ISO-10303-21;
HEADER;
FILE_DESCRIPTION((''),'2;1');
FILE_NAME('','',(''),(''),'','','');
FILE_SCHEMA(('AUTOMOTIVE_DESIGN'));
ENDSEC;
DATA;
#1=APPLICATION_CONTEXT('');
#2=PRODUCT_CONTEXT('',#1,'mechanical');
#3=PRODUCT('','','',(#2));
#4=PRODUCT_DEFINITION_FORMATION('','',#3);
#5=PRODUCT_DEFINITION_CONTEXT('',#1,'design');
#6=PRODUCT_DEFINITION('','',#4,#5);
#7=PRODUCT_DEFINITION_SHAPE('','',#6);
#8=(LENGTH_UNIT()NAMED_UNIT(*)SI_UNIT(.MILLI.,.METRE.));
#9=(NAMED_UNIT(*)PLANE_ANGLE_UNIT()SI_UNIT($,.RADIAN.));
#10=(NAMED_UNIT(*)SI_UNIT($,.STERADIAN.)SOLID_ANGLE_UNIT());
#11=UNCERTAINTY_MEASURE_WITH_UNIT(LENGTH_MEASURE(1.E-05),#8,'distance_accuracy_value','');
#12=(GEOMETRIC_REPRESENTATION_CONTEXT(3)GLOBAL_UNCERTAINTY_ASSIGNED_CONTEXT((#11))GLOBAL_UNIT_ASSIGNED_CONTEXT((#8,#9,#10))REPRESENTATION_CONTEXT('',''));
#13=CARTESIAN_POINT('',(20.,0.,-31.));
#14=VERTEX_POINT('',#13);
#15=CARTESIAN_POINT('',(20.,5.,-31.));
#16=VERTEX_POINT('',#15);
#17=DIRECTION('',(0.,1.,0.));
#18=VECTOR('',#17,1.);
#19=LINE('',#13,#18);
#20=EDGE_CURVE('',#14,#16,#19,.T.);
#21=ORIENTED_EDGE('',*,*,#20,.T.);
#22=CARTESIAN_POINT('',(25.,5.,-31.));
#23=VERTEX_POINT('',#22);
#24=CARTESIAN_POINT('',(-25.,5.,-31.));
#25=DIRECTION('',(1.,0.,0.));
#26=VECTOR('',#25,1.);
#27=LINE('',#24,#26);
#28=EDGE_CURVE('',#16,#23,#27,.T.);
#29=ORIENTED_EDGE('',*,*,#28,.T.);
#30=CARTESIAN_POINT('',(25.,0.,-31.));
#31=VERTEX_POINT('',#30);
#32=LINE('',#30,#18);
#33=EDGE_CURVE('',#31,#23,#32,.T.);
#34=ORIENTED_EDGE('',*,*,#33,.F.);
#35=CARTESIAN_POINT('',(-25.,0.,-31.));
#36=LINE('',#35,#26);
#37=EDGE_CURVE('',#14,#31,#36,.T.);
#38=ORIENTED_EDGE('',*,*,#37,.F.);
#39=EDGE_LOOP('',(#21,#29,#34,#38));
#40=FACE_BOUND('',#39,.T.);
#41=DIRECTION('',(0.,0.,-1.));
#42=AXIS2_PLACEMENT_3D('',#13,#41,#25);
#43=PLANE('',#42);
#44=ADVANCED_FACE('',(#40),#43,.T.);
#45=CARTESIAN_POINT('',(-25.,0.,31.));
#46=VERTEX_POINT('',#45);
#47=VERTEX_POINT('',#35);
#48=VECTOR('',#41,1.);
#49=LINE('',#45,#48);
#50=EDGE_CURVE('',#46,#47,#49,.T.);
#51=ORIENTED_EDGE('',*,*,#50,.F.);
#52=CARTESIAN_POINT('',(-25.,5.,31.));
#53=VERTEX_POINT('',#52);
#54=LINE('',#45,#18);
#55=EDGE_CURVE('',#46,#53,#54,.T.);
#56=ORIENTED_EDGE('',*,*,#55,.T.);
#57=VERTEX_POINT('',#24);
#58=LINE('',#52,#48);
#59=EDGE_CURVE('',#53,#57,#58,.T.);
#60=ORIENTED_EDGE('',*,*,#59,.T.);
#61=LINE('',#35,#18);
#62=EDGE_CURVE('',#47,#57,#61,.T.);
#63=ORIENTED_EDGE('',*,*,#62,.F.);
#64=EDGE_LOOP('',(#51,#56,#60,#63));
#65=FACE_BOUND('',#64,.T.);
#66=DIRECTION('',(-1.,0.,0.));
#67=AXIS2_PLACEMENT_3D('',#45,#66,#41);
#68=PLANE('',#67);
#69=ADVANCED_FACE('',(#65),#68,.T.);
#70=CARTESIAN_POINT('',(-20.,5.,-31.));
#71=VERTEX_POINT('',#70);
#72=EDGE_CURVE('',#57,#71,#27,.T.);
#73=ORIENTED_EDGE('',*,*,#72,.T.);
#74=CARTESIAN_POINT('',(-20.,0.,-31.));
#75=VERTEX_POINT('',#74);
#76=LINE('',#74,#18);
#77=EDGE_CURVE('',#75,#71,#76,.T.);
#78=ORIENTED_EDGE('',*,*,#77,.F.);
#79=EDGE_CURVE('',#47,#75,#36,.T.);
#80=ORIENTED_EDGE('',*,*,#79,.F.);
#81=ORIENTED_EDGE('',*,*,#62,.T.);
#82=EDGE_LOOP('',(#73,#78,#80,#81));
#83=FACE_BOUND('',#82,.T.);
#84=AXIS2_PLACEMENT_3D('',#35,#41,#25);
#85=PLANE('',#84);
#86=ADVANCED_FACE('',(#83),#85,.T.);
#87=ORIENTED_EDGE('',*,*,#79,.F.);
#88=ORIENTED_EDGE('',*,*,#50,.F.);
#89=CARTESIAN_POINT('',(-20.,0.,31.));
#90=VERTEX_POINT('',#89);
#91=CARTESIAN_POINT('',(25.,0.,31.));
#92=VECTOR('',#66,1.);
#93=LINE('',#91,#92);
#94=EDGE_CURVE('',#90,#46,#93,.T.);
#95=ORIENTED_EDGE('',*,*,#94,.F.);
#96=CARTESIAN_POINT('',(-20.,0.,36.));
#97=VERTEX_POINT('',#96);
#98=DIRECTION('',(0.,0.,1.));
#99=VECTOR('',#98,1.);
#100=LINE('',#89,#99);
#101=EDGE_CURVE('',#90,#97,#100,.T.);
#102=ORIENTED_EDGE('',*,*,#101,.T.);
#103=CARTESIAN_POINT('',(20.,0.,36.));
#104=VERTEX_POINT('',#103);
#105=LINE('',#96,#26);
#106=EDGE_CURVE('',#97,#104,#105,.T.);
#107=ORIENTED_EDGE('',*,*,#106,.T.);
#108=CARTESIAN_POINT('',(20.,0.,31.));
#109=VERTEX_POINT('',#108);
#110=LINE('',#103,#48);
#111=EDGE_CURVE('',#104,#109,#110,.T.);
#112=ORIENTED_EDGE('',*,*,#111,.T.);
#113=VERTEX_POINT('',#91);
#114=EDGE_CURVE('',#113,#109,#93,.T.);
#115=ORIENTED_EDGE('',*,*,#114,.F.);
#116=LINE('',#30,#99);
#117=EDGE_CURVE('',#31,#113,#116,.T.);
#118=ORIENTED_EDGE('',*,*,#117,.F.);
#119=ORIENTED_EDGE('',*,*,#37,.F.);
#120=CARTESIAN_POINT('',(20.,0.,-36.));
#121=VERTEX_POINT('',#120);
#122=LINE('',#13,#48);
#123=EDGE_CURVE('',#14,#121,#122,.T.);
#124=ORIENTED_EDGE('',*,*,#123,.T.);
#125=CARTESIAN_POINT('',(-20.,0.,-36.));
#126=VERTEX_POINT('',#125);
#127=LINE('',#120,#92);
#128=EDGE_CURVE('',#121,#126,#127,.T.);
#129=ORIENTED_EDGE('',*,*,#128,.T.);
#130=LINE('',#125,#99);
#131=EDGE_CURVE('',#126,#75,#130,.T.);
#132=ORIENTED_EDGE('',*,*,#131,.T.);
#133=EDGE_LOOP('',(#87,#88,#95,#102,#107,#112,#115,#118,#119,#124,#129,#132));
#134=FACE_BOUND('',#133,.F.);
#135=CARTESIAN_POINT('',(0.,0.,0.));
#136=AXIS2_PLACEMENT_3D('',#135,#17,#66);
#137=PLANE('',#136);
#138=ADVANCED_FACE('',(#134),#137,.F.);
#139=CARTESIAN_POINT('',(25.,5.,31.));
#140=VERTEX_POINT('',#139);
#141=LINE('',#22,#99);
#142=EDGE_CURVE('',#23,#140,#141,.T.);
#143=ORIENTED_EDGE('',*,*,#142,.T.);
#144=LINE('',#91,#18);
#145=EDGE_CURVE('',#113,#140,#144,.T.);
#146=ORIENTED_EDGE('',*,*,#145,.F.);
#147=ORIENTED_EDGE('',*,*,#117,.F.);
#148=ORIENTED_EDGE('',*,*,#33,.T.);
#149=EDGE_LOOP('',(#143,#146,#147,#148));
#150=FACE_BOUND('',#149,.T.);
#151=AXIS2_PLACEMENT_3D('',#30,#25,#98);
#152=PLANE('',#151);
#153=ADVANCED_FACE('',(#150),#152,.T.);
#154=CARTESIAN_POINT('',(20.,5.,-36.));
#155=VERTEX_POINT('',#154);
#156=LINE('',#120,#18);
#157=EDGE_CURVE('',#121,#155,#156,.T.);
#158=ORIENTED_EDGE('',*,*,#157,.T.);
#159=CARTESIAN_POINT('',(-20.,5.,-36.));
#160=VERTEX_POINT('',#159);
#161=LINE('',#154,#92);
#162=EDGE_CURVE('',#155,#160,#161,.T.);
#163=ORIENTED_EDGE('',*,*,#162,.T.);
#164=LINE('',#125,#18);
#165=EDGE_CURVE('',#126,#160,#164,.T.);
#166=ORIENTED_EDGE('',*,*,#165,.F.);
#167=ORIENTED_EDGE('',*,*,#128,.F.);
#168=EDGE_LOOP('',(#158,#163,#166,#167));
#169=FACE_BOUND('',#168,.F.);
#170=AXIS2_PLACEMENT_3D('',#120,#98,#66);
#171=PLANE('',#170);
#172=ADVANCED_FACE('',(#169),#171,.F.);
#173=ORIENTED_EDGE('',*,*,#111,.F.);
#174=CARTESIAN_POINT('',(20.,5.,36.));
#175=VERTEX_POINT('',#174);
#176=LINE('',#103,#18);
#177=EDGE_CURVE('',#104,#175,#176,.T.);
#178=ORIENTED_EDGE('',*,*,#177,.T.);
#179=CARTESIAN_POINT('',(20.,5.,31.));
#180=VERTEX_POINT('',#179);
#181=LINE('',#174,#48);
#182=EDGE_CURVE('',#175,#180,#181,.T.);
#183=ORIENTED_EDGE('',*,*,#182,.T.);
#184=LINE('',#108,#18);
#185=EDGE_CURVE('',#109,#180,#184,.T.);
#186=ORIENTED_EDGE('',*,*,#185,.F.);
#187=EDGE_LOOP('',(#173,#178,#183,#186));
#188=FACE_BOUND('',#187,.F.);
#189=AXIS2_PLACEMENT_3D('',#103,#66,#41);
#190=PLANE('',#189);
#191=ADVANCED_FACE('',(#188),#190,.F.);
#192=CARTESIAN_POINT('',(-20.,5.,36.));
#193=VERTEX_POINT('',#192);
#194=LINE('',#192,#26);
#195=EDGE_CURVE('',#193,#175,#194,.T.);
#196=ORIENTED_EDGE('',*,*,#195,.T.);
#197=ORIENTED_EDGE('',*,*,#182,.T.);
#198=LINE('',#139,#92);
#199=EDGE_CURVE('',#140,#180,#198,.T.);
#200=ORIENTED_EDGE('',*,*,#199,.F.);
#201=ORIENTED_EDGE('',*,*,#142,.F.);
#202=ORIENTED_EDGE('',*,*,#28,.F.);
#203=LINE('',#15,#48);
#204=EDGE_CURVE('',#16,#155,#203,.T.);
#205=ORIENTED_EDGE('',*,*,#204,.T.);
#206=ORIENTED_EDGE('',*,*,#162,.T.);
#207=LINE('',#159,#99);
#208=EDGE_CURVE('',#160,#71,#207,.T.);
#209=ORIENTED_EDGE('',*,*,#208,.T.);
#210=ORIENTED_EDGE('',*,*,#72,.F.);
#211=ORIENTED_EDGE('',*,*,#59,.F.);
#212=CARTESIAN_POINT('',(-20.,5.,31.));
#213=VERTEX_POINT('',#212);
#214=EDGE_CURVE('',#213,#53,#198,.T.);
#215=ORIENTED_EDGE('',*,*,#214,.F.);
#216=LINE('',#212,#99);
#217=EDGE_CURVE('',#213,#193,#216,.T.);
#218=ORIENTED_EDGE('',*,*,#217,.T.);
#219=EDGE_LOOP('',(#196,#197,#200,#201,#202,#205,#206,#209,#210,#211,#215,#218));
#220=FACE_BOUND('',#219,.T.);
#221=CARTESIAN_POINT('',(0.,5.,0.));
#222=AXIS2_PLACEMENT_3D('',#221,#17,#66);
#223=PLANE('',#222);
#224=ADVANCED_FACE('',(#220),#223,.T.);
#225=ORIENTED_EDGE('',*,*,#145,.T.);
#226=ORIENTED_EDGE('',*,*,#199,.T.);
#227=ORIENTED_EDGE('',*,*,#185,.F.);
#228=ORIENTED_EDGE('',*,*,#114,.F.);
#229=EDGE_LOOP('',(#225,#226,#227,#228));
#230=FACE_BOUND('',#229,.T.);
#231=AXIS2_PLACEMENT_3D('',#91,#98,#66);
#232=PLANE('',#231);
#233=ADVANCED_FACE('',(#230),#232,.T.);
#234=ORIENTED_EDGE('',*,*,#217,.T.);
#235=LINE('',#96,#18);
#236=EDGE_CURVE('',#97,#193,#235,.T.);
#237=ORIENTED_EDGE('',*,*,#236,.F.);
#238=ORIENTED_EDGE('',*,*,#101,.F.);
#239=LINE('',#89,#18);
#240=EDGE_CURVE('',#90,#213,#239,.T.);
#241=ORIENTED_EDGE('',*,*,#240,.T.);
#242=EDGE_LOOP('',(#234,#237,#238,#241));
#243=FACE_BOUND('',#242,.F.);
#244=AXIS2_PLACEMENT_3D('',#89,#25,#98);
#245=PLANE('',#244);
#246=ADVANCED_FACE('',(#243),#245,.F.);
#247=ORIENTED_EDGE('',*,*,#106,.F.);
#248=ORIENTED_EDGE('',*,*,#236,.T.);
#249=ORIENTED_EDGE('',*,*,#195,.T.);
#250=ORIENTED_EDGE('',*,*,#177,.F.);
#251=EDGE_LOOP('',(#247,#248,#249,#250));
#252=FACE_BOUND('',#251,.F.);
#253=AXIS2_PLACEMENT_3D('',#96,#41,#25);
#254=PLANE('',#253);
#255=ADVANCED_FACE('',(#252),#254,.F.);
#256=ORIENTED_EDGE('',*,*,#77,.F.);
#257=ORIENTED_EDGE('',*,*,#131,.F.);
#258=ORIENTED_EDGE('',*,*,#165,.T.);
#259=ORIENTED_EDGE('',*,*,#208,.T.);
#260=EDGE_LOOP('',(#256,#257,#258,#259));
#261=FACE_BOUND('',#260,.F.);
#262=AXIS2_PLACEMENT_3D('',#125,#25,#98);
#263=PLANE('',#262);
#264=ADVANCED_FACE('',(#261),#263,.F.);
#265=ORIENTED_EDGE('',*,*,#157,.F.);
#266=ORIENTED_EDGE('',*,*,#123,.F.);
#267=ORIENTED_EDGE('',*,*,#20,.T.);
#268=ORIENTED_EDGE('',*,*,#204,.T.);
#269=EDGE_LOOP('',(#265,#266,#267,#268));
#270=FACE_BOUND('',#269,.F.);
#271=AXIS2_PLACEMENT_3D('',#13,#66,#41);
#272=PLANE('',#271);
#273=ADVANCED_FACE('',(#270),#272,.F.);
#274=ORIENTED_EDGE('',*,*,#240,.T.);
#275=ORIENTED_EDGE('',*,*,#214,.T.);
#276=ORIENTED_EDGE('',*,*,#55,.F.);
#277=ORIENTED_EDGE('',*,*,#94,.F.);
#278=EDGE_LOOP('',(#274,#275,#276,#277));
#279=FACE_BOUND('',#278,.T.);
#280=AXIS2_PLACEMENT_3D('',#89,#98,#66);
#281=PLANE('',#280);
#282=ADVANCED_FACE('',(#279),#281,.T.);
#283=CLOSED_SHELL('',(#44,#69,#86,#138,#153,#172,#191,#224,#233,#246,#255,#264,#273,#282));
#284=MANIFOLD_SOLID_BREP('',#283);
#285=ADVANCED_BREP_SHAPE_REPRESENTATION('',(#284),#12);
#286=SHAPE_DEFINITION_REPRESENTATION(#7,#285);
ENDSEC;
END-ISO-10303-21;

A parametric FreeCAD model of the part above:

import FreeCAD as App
import Part
import Sketcher
from FreeCAD import Vector
Q = App.Units.Quantity

doc = App.newDocument("Part")
body = doc.addObject("PartDesign::Body", "Body")

# Sketch on XZ plane
sketch1 = body.newObject("Sketcher::SketchObject", "Sketch")
sketch1.AttachmentSupport = (doc.getObject("XZ_Plane"), [""])
sketch1.MapMode = "FlatFace"
sketch1.addGeometry([
    Part.LineSegment(Vector(-20, -31, 0), Vector(-25, -31, 0)),  # 0
    Part.LineSegment(Vector(-25, -31, 0), Vector(-25, 31, 0)),  # 1
    Part.LineSegment(Vector(-25, 31, 0), Vector(-20, 31, 0)),  # 2
    Part.LineSegment(Vector(-20, 31, 0), Vector(-20, 36, 0)),  # 3
    Part.LineSegment(Vector(-20, 36, 0), Vector(20, 36, 0)),  # 4
    Part.LineSegment(Vector(20, 36, 0), Vector(20, 31, 0)),  # 5
    Part.LineSegment(Vector(20, 31, 0), Vector(25, 31, 0)),  # 6
    Part.LineSegment(Vector(25, 31, 0), Vector(25, -31, 0)),  # 7
    Part.LineSegment(Vector(25, -31, 0), Vector(20, -31, 0)),  # 8
    Part.LineSegment(Vector(20, -31, 0), Vector(20, -36, 0)),  # 9
    Part.LineSegment(Vector(20, -36, 0), Vector(-20, -36, 0)),  # 10
    Part.LineSegment(Vector(-20, -36, 0), Vector(-20, -31, 0)),  # 11
], False)
sketch1.addConstraint([
    Sketcher.Constraint("Coincident", 0, 2, 1, 1),
    Sketcher.Constraint("Coincident", 1, 2, 2, 1),
    Sketcher.Constraint("Coincident", 2, 2, 3, 1),
    Sketcher.Constraint("Coincident", 3, 2, 4, 1),
    Sketcher.Constraint("Coincident", 4, 2, 5, 1),
    Sketcher.Constraint("Coincident", 5, 2, 6, 1),
    Sketcher.Constraint("Coincident", 6, 2, 7, 1),
    Sketcher.Constraint("Coincident", 7, 2, 8, 1),
    Sketcher.Constraint("Coincident", 8, 2, 9, 1),
    Sketcher.Constraint("Coincident", 9, 2, 10, 1),
    Sketcher.Constraint("Coincident", 10, 2, 11, 1),
    Sketcher.Constraint("Coincident", 11, 2, 0, 1),
    Sketcher.Constraint("Horizontal", 0),
    Sketcher.Constraint("Vertical", 1),
    Sketcher.Constraint("Horizontal", 2),
    Sketcher.Constraint("Vertical", 3),
    Sketcher.Constraint("Horizontal", 4),
    Sketcher.Constraint("Vertical", 5),
    Sketcher.Constraint("Horizontal", 6),
    Sketcher.Constraint("Vertical", 7),
    Sketcher.Constraint("Horizontal", 8),
    Sketcher.Constraint("Vertical", 9),
    Sketcher.Constraint("Horizontal", 10),
    Sketcher.Constraint("Vertical", 11),
    Sketcher.Constraint("Symmetric", 0, 2, 6, 2, -1, 1),
    Sketcher.Constraint("Symmetric", 2, 2, 8, 2, -1, 1),
    Sketcher.Constraint("Symmetric", 4, 2, 10, 2, -1, 1),
    Sketcher.Constraint("Symmetric", 2, 2, 5, 2, -2),
    Sketcher.Constraint("Equal", 8, 3),
    Sketcher.Constraint("DistanceX", 0, 2, 0, 1, Q("5 mm")),
    Sketcher.Constraint("DistanceX", 4, 1, 4, 2, Q("40 mm")),
    Sketcher.Constraint("DistanceY", 1, 1, 1, 2, Q("62 mm")),
])
pad1 = body.newObject("PartDesign::Pad", "Pad")
pad1.Profile = sketch1
pad1.Length = 5
pad1.Reversed = True

doc.recompute()
